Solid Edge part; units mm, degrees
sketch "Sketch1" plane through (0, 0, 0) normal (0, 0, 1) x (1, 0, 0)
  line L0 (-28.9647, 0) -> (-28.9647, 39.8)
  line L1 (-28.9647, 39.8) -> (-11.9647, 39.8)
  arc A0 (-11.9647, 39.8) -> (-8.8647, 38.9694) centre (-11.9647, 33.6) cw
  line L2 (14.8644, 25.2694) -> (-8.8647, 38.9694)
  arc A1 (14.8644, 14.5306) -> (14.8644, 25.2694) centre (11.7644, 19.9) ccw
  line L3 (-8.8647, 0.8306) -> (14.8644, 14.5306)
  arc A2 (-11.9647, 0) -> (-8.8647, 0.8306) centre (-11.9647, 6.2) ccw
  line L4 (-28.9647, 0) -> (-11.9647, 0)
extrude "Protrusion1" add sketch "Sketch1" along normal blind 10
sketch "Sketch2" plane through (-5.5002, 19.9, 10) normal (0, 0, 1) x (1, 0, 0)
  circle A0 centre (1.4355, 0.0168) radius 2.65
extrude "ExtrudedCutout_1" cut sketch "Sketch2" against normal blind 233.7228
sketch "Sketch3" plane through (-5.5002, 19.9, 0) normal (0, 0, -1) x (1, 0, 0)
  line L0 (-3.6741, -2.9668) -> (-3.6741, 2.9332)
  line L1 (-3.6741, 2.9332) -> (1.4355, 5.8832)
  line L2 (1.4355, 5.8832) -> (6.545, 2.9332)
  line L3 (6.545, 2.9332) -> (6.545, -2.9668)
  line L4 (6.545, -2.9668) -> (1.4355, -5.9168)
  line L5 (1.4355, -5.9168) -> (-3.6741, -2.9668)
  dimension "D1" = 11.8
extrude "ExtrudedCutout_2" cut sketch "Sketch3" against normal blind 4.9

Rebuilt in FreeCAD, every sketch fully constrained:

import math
import FreeCAD as App
import Part
import Sketcher

V = App.Vector
Q = App.Units.Quantity


def add_polygon(sketch, points):
    """Adds a closed chain of lines whose ends are joined by coincident constraints."""
    first, n = sketch.GeometryCount, len(points)
    for a, b in zip(points, points[1:] + points[:1]):
        sketch.addGeometry(Part.LineSegment(App.Vector(*a, 0), App.Vector(*b, 0)), False)
    for i in range(n):
        sketch.addConstraint(Sketcher.Constraint("Coincident", first + i, 2, first + (i + 1) % n, 1))

doc = App.newDocument("Part")
body = doc.addObject("PartDesign::Body", "Body")

sketch1 = body.newObject("Sketcher::SketchObject", "Sketch")
sketch1.AttachmentSupport = (doc.getObject("XY_Plane"), [""])
sketch1.MapMode = "FlatFace"
sketch1.addGeometry([
    Part.LineSegment(V(-28.9647, 39.8, 0), V(-28.9647, 0, 0)),
    Part.LineSegment(V(-28.9647, 0, 0), V(-11.9647, 0, 0)),
    Part.ArcOfCircle(Part.Circle(V(-11.9647, 6.2, 0), V(0, 0, 1), 6.2), math.radians(-90), math.radians(-60.000196)),
    Part.LineSegment(V(-8.8647, 0.8306, 0), V(14.8644, 14.5306, 0)),
    Part.ArcOfCircle(Part.Circle(V(11.7644, 19.9, 0), V(0, 0, 1), 6.200037), math.radians(-60.000196), math.radians(60.000196)),
    Part.LineSegment(V(14.8644, 25.2694, 0), V(-8.8647, 38.9694, 0)),
    Part.ArcOfCircle(Part.Circle(V(-11.9647, 33.6, 0), V(0, 0, 1), 6.2), math.radians(60.000196), math.radians(90)),
    Part.LineSegment(V(-11.9647, 39.8, 0), V(-28.9647, 39.8, 0)),
], False)
sketch1.addConstraint([
    Sketcher.Constraint("Coincident", 0, 2, 1, 1),
    Sketcher.Constraint("Tangent", 1, 2, 2, 1),
    Sketcher.Constraint("Tangent", 2, 2, 3, 1),
    Sketcher.Constraint("Tangent", 3, 2, 4, 1),
    Sketcher.Constraint("Tangent", 4, 2, 5, 1),
    Sketcher.Constraint("Tangent", 5, 2, 6, 1),
    Sketcher.Constraint("Tangent", 6, 2, 7, 1),
    Sketcher.Constraint("Coincident", 7, 2, 0, 1),
    Sketcher.Constraint("Vertical", 0),
    Sketcher.Constraint("Horizontal", 1),
    Sketcher.Constraint("Horizontal", 7),
    Sketcher.Constraint("Equal", 2, 4),
    Sketcher.Constraint("Equal", 4, 6),
    Sketcher.Constraint("PointOnObject", 0, 2, -1),
    Sketcher.Constraint("Vertical", 2, 3, 6, 3),
    Sketcher.Constraint("Vertical", 3, 2, 4, 2),
    Sketcher.Constraint("Radius", 2, 6.2),
    Sketcher.Constraint("DistanceX", 1, 1, 1, 2, 17.0),
    Sketcher.Constraint("Angle", 3, Q("30 deg")),
    Sketcher.Constraint("DistanceY", 0, 2, 0, 1, 39.8),
    Sketcher.Constraint("DistanceX", 2, 3, -1, 1, 11.9647),
])
pad1 = body.newObject("PartDesign::Pad", "Pad")
pad1.Profile = sketch1
pad1.Length = 10

sketch2 = body.newObject("Sketcher::SketchObject", "Sketch001")
sketch2.AttachmentSupport = (doc.getObject("XY_Plane"), [""])
sketch2.MapMode = "FlatFace"
sketch2.AttachmentOffset = App.Placement(V(0, 0, 10), App.Rotation())
sketch2.addGeometry(Part.Circle(V(-4.0647, 19.9168, 0), V(0, 0, 1), 2.65), False)
sketch2.addConstraint([
    Sketcher.Constraint("Diameter", 0, 5.3),
    Sketcher.Constraint("DistanceX", 0, 3, -1, 1, 4.0647),
    Sketcher.Constraint("DistanceY", -1, 1, 0, 3, 19.9168),
])
pocket1 = body.newObject("PartDesign::Pocket", "Pocket")
pocket1.Profile = sketch2
pocket1.Length = 233.7228

sketch3 = body.newObject("Sketcher::SketchObject", "Sketch002")
sketch3.AttachmentSupport = (doc.getObject("XY_Plane"), [""])
sketch3.MapMode = "FlatFace"
add_polygon(sketch3, [(-9.1743, 16.9668), (-9.1743, 22.8668), (-4.0647, 25.8168), (1.0448, 22.8668), (1.0448, 16.9668), (-4.0647, 14.0168)])
sketch3.addConstraint([
    Sketcher.Constraint("Vertical", 0),
    Sketcher.Constraint("Vertical", 3),
    Sketcher.Constraint("Parallel", 1, 4),
    Sketcher.Constraint("Parallel", 2, 5),
    Sketcher.Constraint("Horizontal", 0, 2, 2, 2),
    Sketcher.Constraint("Horizontal", 3, 2, 5, 2),
    Sketcher.Constraint("Vertical", 1, 2, 4, 2),
    Sketcher.Constraint("Angle", 1, Q("29.9998 deg")),
    Sketcher.Constraint("DistanceY", 0, 1, 0, 2, 5.9),
    Sketcher.Constraint("Distance", 1, 5.9),
    Sketcher.Constraint("DistanceX", 0, 2, -1, 1, 9.1743),
    Sketcher.Constraint("DistanceY", -1, 1, 0, 2, 22.8668),
])
pocket2 = body.newObject("PartDesign::Pocket", "Pocket001")
pocket2.Profile = sketch3
pocket2.Length = 4.9
pocket2.Reversed = True

doc.recompute()
